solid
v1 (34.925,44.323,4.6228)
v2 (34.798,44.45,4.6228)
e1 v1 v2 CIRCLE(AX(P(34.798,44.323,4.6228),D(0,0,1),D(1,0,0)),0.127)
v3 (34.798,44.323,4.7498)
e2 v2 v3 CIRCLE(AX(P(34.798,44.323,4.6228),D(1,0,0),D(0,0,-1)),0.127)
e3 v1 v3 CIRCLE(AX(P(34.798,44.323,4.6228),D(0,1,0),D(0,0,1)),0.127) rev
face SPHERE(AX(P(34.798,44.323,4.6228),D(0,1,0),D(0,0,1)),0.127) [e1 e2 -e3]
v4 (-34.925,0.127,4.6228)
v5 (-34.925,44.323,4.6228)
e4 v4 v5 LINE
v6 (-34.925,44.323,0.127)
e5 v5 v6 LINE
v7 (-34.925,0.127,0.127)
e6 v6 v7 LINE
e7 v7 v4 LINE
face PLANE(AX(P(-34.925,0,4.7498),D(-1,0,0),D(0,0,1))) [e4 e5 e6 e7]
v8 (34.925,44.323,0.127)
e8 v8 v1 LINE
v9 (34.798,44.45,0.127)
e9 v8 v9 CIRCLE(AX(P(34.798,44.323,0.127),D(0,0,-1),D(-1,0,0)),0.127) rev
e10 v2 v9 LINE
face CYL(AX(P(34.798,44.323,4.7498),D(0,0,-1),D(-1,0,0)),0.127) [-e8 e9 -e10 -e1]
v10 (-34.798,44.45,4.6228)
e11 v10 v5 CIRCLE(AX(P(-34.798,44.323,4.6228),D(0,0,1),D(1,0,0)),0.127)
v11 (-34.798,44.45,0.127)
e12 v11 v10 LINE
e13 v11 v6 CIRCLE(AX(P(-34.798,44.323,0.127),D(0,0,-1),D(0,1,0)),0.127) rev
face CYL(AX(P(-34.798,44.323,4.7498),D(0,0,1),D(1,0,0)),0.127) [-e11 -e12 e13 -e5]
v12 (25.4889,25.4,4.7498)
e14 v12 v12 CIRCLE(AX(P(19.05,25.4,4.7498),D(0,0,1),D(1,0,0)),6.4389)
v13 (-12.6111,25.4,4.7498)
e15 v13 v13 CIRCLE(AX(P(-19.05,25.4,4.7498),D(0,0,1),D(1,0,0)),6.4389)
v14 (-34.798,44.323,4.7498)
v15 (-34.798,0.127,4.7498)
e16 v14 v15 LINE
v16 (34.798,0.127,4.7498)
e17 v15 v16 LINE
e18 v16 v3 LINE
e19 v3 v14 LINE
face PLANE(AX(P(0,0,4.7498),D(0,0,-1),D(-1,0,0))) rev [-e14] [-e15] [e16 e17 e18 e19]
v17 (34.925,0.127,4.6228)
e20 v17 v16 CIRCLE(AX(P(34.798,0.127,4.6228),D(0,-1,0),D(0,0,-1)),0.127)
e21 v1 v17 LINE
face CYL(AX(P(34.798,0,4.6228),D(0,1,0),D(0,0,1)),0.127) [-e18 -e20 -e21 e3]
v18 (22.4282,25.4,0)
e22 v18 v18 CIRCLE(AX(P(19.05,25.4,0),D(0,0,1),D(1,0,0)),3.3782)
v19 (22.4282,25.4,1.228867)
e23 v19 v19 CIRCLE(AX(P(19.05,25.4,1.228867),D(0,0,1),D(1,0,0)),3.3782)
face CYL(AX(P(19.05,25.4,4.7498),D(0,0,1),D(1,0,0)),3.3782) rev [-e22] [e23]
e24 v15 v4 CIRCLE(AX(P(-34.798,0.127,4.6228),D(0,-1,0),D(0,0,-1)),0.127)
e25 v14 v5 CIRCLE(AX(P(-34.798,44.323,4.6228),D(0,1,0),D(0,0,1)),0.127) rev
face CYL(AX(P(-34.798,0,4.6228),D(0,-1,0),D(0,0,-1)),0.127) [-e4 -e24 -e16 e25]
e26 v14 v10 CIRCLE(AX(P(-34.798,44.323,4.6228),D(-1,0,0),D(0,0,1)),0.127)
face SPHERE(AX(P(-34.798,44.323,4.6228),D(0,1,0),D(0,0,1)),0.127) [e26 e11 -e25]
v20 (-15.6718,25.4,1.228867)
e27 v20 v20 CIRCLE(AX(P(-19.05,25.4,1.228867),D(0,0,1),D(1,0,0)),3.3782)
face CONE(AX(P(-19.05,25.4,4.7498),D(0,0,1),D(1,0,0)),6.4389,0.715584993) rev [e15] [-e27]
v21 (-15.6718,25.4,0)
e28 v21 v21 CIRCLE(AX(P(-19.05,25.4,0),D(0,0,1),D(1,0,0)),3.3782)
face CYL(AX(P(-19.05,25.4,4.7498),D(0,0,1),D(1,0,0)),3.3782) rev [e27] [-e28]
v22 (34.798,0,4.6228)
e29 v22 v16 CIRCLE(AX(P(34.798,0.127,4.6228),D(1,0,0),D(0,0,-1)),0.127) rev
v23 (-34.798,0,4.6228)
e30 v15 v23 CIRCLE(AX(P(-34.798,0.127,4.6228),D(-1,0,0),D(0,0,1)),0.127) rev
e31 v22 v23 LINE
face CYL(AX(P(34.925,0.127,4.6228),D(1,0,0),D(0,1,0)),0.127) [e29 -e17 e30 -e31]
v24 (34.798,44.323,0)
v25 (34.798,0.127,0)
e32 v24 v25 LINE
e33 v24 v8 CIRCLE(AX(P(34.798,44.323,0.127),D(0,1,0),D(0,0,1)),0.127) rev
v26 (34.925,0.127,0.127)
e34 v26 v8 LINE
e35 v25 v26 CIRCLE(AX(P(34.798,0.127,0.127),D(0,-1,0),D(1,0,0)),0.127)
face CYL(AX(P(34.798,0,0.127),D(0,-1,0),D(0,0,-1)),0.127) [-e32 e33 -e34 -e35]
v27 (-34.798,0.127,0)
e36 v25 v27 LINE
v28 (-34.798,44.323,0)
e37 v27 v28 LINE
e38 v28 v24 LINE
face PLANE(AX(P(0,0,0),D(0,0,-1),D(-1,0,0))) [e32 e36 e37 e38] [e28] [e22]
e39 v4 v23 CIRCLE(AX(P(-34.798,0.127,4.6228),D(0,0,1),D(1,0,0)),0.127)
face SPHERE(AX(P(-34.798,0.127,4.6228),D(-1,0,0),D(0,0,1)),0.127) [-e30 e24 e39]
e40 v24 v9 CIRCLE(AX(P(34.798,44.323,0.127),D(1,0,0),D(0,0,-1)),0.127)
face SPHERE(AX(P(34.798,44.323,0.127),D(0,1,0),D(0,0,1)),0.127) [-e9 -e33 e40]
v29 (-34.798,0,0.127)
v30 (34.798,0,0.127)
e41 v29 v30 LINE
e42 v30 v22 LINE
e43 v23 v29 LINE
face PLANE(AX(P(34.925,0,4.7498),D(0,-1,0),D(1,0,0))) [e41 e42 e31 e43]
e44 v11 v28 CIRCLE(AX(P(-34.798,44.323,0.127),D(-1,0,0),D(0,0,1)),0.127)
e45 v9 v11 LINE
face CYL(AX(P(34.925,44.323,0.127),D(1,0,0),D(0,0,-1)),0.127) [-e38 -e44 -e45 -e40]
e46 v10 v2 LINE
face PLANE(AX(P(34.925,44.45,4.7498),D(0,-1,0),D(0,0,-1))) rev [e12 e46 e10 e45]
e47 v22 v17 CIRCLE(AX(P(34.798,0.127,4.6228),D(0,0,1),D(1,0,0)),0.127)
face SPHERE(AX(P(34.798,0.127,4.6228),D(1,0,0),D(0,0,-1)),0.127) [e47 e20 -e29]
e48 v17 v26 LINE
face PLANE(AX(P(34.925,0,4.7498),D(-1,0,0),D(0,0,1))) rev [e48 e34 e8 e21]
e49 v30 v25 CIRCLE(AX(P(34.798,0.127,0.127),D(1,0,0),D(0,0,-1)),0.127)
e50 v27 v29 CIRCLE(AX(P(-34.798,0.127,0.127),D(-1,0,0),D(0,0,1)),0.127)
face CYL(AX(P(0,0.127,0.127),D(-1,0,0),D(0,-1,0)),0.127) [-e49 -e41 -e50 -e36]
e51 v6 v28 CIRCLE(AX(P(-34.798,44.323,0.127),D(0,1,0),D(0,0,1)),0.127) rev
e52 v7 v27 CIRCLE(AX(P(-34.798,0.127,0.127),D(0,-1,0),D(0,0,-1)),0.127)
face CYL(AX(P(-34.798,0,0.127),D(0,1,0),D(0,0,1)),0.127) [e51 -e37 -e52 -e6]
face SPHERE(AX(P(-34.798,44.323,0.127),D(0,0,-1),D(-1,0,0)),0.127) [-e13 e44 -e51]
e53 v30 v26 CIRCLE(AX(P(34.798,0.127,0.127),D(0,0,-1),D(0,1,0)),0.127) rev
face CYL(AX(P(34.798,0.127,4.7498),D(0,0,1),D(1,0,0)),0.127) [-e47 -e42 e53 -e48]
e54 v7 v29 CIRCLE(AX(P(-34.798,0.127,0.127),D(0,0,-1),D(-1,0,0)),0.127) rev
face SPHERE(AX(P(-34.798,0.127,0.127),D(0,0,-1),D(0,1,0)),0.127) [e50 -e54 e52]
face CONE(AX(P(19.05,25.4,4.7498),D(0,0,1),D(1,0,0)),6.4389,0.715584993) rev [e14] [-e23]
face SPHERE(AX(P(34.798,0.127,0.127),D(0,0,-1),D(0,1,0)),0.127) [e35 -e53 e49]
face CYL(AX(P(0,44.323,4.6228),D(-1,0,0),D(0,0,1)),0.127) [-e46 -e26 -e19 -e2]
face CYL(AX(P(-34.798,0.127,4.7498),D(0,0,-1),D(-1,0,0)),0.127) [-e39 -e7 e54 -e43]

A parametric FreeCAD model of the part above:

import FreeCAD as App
import Part
import Sketcher
Q = App.Units.Quantity


def edges_at(feature, points):
    """Names of the edges that pass closest to the given points."""
    edges = feature.Shape.Edges
    near = lambda p: min(range(len(edges)), key=lambda i: edges[i].distToShape(Part.Vertex(*p))[0])
    return sorted({f"Edge{near(p) + 1}" for p in points})

doc = App.newDocument("Part")
params = doc.addObject("Spreadsheet::Sheet", "Params")
for row, (alias, value) in enumerate([
    ("sketch1_width", "2.75 in"),
    ("sketch1_height", "1.75 in"),
    ("pad1_length", "0.187 in"),
    ("sketch2_width", "0.133 in"),
    ("sketch2_height", "0.187 in"),
    ("groove_angle", "360 deg"),
    ("linearpattern_pitch", "1.5 in"),
    ("fillet_radius", "0.005 in"),
], start=1):
    params.set(f"A{row}", alias)
    params.set(f"B{row}", "=" + value)
    params.setAlias(f"B{row}", alias)

body = doc.addObject("PartDesign::Body", "Body")

sketch1 = doc.addObject("Sketcher::SketchObject", "Sketch")
body.addObject(sketch1)
sketch1.AttachmentSupport = (doc.XY_Plane, [""])
sketch1.MapMode = "FlatFace"
sketch1.addGeometry(Part.LineSegment(App.Vector(-35, 44, 0), App.Vector(-35, 0, 0)), False)
sketch1.addGeometry(Part.LineSegment(App.Vector(-35, 0, 0), App.Vector(35, 0, 0)), False)
sketch1.addGeometry(Part.LineSegment(App.Vector(35, 0, 0), App.Vector(35, 44, 0)), False)
sketch1.addGeometry(Part.LineSegment(App.Vector(35, 44, 0), App.Vector(-35, 44, 0)), False)
sketch1.addConstraint(Sketcher.Constraint("Coincident", 0, 2, 1, 1))
sketch1.addConstraint(Sketcher.Constraint("Coincident", 1, 2, 2, 1))
sketch1.addConstraint(Sketcher.Constraint("Coincident", 2, 2, 3, 1))
sketch1.addConstraint(Sketcher.Constraint("Coincident", 3, 2, 0, 1))
sketch1.addConstraint(Sketcher.Constraint("Vertical", 0))
sketch1.addConstraint(Sketcher.Constraint("Horizontal", 1))
sketch1.addConstraint(Sketcher.Constraint("Vertical", 2))
sketch1.addConstraint(Sketcher.Constraint("Horizontal", 3))
sketch1.addConstraint(Sketcher.Constraint("Symmetric", 0, 2, 1, 2, -1, 1))
sketch1.addConstraint(Sketcher.Constraint("DistanceX", 1, 1, 1, 2, Q("2.75 in")))
sketch1.addConstraint(Sketcher.Constraint("DistanceY", 0, 2, 0, 1, Q("1.75 in")))
sketch1.setExpression("Constraints[9]", "Params.sketch1_width")
sketch1.setExpression("Constraints[10]", "Params.sketch1_height")
pad1 = doc.addObject("PartDesign::Pad", "Pad")
body.addObject(pad1)
pad1.Profile = sketch1
pad1.setExpression("Length", "Params.pad1_length")

sketch2 = doc.addObject("Sketcher::SketchObject", "Sketch001")
body.addObject(sketch2)
sketch2.AttachmentSupport = (doc.YZ_Plane, [""])
sketch2.MapMode = "FlatFace"
sketch2.AttachmentOffset = App.Placement(App.Vector(0, 0, 0.75 * 25.4), App.Rotation())
sketch2.addGeometry(Part.LineSegment(App.Vector(25.4, 0, 0), App.Vector(25.4, 4.7, 0)), False)
sketch2.addGeometry(Part.LineSegment(App.Vector(25.4, 4.7, 0), App.Vector(19, 4.7, 0)), False)
sketch2.addGeometry(Part.LineSegment(App.Vector(19, 4.7, 0), App.Vector(22, 1.2, 0)), False)
sketch2.addGeometry(Part.LineSegment(App.Vector(22, 1.2, 0), App.Vector(22, 0, 0)), False)
sketch2.addGeometry(Part.LineSegment(App.Vector(22, 0, 0), App.Vector(25.4, 0, 0)), False)
sketch2.addGeometry(Part.LineSegment(App.Vector(25.4, 4.7, 0), App.Vector(25.4, 0, 0)), True)
sketch2.addConstraint(Sketcher.Constraint("Coincident", 0, 2, 1, 1))
sketch2.addConstraint(Sketcher.Constraint("Coincident", 1, 2, 2, 1))
sketch2.addConstraint(Sketcher.Constraint("Coincident", 2, 2, 3, 1))
sketch2.addConstraint(Sketcher.Constraint("Coincident", 3, 2, 4, 1))
sketch2.addConstraint(Sketcher.Constraint("Coincident", 4, 2, 0, 1))
sketch2.addConstraint(Sketcher.Constraint("Vertical", 0))
sketch2.addConstraint(Sketcher.Constraint("Horizontal", 1))
sketch2.addConstraint(Sketcher.Constraint("Vertical", 3))
sketch2.addConstraint(Sketcher.Constraint("Horizontal", 4))
sketch2.addConstraint(Sketcher.Constraint("Vertical", 5))
sketch2.addConstraint(Sketcher.Constraint("Coincident", 5, 1, 0, 2))
sketch2.addConstraint(Sketcher.Constraint("PointOnObject", 3, 2, -1))
sketch2.addConstraint(Sketcher.Constraint("PointOnObject", 5, 2, -1))
sketch2.addConstraint(Sketcher.Constraint("DistanceX", -1, 1, 0, 2, Q("1 in")))
sketch2.addConstraint(Sketcher.Constraint("Angle", 2, Q("-49 deg")))
sketch2.addConstraint(Sketcher.Constraint("DistanceX", 4, 1, 4, 2, Q("0.133 in")))
sketch2.addConstraint(Sketcher.Constraint("DistanceY", 0, 1, 0, 2, Q("0.187 in")))
sketch2.addConstraint(Sketcher.Constraint("DistanceX", 1, 2, 1, 1, Q("0.2535 in")))
sketch2.setExpression("Constraints[15]", "Params.sketch2_width")
sketch2.setExpression("Constraints[16]", "Params.sketch2_height")
groove = doc.addObject("PartDesign::Groove", "Groove")
body.addObject(groove)
groove.Profile = sketch2
groove.ReferenceAxis = (sketch2, ["Axis0"])
groove.setExpression("Angle", "Params.groove_angle")
doc.recompute()

linearpattern = doc.addObject("PartDesign::LinearPattern", "LinearPattern")
body.addObject(linearpattern)
linearpattern.Originals = [groove]
linearpattern.Direction = (doc.X_Axis, [""])
linearpattern.Mode = "offset"
linearpattern.setExpression("Offset", "Params.linearpattern_pitch")
linearpattern.Occurrences = 2
linearpattern.Reversed = True
body.Tip = linearpattern
doc.recompute()

fillet = doc.addObject("PartDesign::Fillet", "Fillet")
body.addObject(fillet)
fillet.Base = (linearpattern, edges_at(linearpattern, [
    (0, 44.45, 4.75),
    (34.925, 22.225, 4.75),
    (0, 0, 4.75),
    (34.925, 22.225, 0),
    (0, 44.45, 0),
    (-34.925, 22.225, 0),
    (0, 0, 0),
    (34.925, 0, 2.375),
    (34.925, 44.45, 2.375),
    (-34.925, 44.45, 2.375),
    (-34.925, 0, 2.375),
    (-34.925, 22.225, 4.75),
]))
fillet.setExpression("Radius", "Params.fillet_radius")

doc.recompute()
